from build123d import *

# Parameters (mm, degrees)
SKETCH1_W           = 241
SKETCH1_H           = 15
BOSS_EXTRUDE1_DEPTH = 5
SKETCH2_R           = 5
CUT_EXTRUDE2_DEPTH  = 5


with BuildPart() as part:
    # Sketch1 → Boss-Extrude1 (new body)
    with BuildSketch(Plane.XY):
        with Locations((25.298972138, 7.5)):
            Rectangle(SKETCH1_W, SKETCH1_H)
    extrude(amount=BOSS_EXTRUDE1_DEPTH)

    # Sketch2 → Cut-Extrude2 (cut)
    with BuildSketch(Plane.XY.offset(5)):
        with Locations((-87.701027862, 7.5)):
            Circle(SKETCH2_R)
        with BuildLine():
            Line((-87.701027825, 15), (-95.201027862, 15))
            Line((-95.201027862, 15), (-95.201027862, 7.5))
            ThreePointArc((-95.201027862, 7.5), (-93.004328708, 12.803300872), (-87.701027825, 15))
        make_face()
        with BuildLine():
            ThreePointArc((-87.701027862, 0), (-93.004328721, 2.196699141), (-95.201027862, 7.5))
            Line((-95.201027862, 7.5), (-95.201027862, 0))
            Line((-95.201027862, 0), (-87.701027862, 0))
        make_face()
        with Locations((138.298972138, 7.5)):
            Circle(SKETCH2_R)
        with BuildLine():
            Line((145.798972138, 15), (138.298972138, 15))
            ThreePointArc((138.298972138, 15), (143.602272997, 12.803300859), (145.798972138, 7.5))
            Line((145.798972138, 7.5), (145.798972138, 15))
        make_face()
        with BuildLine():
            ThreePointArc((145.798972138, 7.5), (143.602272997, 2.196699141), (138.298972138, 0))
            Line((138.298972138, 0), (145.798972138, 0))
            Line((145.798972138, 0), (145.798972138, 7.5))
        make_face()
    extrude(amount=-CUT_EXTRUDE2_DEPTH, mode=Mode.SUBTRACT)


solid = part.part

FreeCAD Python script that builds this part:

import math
import FreeCAD as App
import Part
import Sketcher

V = App.Vector


def add_polygon(sketch, points):
    """Adds a closed chain of lines whose ends are joined by coincident constraints."""
    first, n = sketch.GeometryCount, len(points)
    for a, b in zip(points, points[1:] + points[:1]):
        sketch.addGeometry(Part.LineSegment(App.Vector(*a, 0), App.Vector(*b, 0)), False)
    for i in range(n):
        sketch.addConstraint(Sketcher.Constraint("Coincident", first + i, 2, first + (i + 1) % n, 1))

doc = App.newDocument("Part")
params = doc.addObject("Spreadsheet::Sheet", "Params")
for row, (alias, value) in enumerate([
    ("sketch1_width", "241 mm"),
    ("sketch1_height", "15 mm"),
    ("pad1_length", "5 mm"),
    ("sketch2_diameter", "10 mm"),
    ("sketch2_radius", "7.5 mm"),
    ("pocket1_length", "5 mm"),
], start=1):
    params.set(f"A{row}", alias)
    params.set(f"B{row}", "=" + value)
    params.setAlias(f"B{row}", alias)

body = doc.addObject("PartDesign::Body", "Body")

sketch1 = body.newObject("Sketcher::SketchObject", "Sketch")
sketch1.AttachmentSupport = (doc.getObject("XY_Plane"), [""])
sketch1.MapMode = "FlatFace"
add_polygon(sketch1, [(-95, 15), (-95, 0), (146, 0), (146, 15)])
sketch1.addConstraint(Sketcher.Constraint("Vertical", 0))
sketch1.addConstraint(Sketcher.Constraint("Horizontal", 1))
sketch1.addConstraint(Sketcher.Constraint("Vertical", 2))
sketch1.addConstraint(Sketcher.Constraint("Horizontal", 3))
sketch1.addConstraint(Sketcher.Constraint("PointOnObject", 0, 2, -1))
sketch1.addConstraint(Sketcher.Constraint("DistanceX", 1, 1, 1, 2, 241.0))
sketch1.addConstraint(Sketcher.Constraint("DistanceY", 0, 2, 0, 1, 15.0))
sketch1.addConstraint(Sketcher.Constraint("DistanceX", 0, 2, -1, 1, 95.201028))
sketch1.setExpression("Constraints[9]", "Params.sketch1_width")
sketch1.setExpression("Constraints[10]", "Params.sketch1_height")
pad1 = body.newObject("PartDesign::Pad", "Pad")
pad1.Profile = sketch1
pad1.setExpression("Length", "Params.pad1_length")

sketch2 = body.newObject("Sketcher::SketchObject", "Sketch001")
sketch2.AttachmentSupport = (doc.getObject("XY_Plane"), [""])
sketch2.MapMode = "FlatFace"
sketch2.AttachmentOffset = App.Placement(V(0, 0, 5), App.Rotation())
sketch2.addGeometry(Part.Circle(V(-88, 8, 0), V(0, 0, 1), 5), False)
sketch2.addGeometry(Part.LineSegment(V(-88, 15, 0), V(-95, 15, 0)), False)
sketch2.addGeometry(Part.LineSegment(V(-95, 15, 0), V(-95, 8, 0)), False)
sketch2.addGeometry(Part.ArcOfCircle(Part.Circle(V(-88, 8, 0), V(0, 0, 1), 8), math.radians(90), math.radians(180)), False)
sketch2.addGeometry(Part.ArcOfCircle(Part.Circle(V(-88, 8, 0), V(0, 0, 1), 8), math.radians(180), math.radians(270)), False)
sketch2.addGeometry(Part.LineSegment(V(-95, 8, 0), V(-95, 0, 0)), False)
sketch2.addGeometry(Part.LineSegment(V(-95, 0, 0), V(-88, 0, 0)), False)
sketch2.addGeometry(Part.Circle(V(138, 8, 0), V(0, 0, 1), 5), False)
sketch2.addGeometry(Part.LineSegment(V(146, 15, 0), V(138, 15, 0)), False)
sketch2.addGeometry(Part.ArcOfCircle(Part.Circle(V(138, 8, 0), V(0, 0, 1), 8), math.radians(0), math.radians(90)), False)
sketch2.addGeometry(Part.LineSegment(V(146, 8, 0), V(146, 15, 0)), False)
sketch2.addGeometry(Part.ArcOfCircle(Part.Circle(V(138, 8, 0), V(0, 0, 1), 8), math.radians(-90), math.radians(0)), False)
sketch2.addGeometry(Part.LineSegment(V(138, 0, 0), V(146, 0, 0)), False)
sketch2.addGeometry(Part.LineSegment(V(146, 0, 0), V(146, 8, 0)), False)
sketch2.addConstraint(Sketcher.Constraint("Coincident", 1, 2, 2, 1))
sketch2.addConstraint(Sketcher.Constraint("Tangent", 2, 2, 3, 2))
sketch2.addConstraint(Sketcher.Constraint("Tangent", 3, 1, 1, 1))
sketch2.addConstraint(Sketcher.Constraint("Tangent", 4, 1, 5, 1))
sketch2.addConstraint(Sketcher.Constraint("Coincident", 5, 2, 6, 1))
sketch2.addConstraint(Sketcher.Constraint("Tangent", 6, 2, 4, 2))
sketch2.addConstraint(Sketcher.Constraint("Tangent", 8, 2, 9, 2))
sketch2.addConstraint(Sketcher.Constraint("Tangent", 9, 1, 10, 1))
sketch2.addConstraint(Sketcher.Constraint("Coincident", 10, 2, 8, 1))
sketch2.addConstraint(Sketcher.Constraint("Tangent", 11, 1, 12, 1))
sketch2.addConstraint(Sketcher.Constraint("Coincident", 12, 2, 13, 1))
sketch2.addConstraint(Sketcher.Constraint("Tangent", 13, 2, 11, 2))
sketch2.addConstraint(Sketcher.Constraint("Horizontal", 1))
sketch2.addConstraint(Sketcher.Constraint("Vertical", 2))
sketch2.addConstraint(Sketcher.Constraint("Vertical", 5))
sketch2.addConstraint(Sketcher.Constraint("Horizontal", 6))
sketch2.addConstraint(Sketcher.Constraint("Horizontal", 8))
sketch2.addConstraint(Sketcher.Constraint("Vertical", 10))
sketch2.addConstraint(Sketcher.Constraint("Horizontal", 12))
sketch2.addConstraint(Sketcher.Constraint("Vertical", 13))
sketch2.addConstraint(Sketcher.Constraint("Coincident", 3, 3, 0, 3))
sketch2.addConstraint(Sketcher.Constraint("Coincident", 4, 3, 0, 3))
sketch2.addConstraint(Sketcher.Constraint("Coincident", 9, 3, 7, 3))
sketch2.addConstraint(Sketcher.Constraint("Coincident", 11, 3, 7, 3))
sketch2.addConstraint(Sketcher.Constraint("Equal", 3, 4))
sketch2.addConstraint(Sketcher.Constraint("Equal", 0, 7))
sketch2.addConstraint(Sketcher.Constraint("Equal", 4, 9))
sketch2.addConstraint(Sketcher.Constraint("Equal", 9, 11))
sketch2.addConstraint(Sketcher.Constraint("PointOnObject", 5, 2, -1))
sketch2.addConstraint(Sketcher.Constraint("PointOnObject", 11, 1, -1))
sketch2.addConstraint(Sketcher.Constraint("Diameter", 0, 10.0))
sketch2.addConstraint(Sketcher.Constraint("Radius", 3, 7.5))
sketch2.addConstraint(Sketcher.Constraint("DistanceX", 0, 3, 7, 3, 226.0))
sketch2.addConstraint(Sketcher.Constraint("DistanceX", 0, 3, -1, 1, 87.701028))
sketch2.setExpression("Constraints[30]", "Params.sketch2_diameter")
sketch2.setExpression("Constraints[31]", "Params.sketch2_radius")
pocket1 = body.newObject("PartDesign::Pocket", "Pocket")
pocket1.Profile = sketch2
pocket1.setExpression("Length", "Params.pocket1_length")

doc.recompute()
